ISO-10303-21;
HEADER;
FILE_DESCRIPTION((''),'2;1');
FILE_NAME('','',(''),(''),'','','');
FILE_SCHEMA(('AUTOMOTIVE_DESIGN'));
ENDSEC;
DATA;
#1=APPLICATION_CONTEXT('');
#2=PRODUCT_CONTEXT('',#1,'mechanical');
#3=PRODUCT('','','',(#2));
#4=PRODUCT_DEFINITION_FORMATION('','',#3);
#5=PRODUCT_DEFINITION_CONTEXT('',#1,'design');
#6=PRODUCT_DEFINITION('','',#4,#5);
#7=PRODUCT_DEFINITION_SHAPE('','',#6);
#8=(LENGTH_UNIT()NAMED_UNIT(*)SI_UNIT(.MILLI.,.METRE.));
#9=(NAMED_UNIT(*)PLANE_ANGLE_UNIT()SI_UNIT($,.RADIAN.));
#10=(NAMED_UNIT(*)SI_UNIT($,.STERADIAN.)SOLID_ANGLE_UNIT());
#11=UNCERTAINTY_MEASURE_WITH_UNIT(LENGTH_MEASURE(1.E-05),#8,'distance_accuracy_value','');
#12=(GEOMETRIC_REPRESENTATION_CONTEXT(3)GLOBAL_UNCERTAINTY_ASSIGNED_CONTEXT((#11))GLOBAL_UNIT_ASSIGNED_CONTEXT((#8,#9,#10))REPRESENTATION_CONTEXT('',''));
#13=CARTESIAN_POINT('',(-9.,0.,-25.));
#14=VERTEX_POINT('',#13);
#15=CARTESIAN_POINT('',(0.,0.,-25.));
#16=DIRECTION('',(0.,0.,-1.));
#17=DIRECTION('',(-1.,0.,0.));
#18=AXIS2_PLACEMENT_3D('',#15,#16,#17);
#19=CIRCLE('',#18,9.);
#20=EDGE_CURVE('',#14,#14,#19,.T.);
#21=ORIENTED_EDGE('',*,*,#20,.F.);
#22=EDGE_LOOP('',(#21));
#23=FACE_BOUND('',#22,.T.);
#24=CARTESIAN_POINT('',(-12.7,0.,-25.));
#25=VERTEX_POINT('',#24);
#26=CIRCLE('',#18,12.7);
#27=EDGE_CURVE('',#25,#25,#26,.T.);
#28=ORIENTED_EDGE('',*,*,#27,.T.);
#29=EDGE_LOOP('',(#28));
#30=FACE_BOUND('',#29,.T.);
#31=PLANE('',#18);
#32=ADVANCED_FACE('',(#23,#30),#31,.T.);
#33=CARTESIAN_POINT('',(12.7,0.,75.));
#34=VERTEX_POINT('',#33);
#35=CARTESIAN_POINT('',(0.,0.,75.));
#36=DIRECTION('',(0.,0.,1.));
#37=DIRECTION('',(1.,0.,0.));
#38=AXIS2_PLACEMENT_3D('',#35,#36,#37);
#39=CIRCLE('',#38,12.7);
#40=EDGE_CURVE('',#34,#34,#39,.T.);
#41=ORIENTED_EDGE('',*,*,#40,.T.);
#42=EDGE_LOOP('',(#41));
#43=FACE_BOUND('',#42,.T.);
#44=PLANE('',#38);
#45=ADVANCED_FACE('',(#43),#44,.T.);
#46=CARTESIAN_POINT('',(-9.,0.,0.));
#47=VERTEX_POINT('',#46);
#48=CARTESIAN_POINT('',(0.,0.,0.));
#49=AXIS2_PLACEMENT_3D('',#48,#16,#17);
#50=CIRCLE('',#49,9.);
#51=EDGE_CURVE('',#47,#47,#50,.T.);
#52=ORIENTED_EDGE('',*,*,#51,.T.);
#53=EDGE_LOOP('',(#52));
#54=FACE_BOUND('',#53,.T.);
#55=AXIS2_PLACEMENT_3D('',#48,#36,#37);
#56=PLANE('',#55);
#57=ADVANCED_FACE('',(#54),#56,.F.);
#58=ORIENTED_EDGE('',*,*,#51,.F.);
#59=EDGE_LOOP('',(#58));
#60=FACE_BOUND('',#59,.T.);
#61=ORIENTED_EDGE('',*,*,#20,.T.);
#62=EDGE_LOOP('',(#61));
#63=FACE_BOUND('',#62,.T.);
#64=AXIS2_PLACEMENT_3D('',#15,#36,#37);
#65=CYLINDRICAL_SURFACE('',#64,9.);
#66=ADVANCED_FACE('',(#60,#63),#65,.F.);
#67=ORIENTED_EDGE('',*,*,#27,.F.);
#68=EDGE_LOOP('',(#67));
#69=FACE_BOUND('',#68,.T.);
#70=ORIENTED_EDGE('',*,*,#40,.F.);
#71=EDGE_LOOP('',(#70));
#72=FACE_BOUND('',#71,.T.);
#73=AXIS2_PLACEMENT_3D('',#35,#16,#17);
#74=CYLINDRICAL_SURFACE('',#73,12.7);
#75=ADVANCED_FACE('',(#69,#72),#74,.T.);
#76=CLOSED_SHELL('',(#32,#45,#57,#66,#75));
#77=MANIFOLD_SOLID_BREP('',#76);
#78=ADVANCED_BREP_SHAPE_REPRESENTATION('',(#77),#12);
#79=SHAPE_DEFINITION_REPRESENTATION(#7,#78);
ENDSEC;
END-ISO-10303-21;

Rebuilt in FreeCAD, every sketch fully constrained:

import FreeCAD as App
import Part
import Sketcher

V = App.Vector
Q = App.Units.Quantity

doc = App.newDocument("Part")
body = doc.addObject("PartDesign::Body", "Body")

sketch1 = doc.addObject("Sketcher::SketchObject", "Sketch")
body.addObject(sketch1)
sketch1.AttachmentSupport = (doc.XY_Plane, [""])
sketch1.MapMode = "FlatFace"
sketch1.addGeometry(Part.Circle(V(0, 0, 0), V(0, 0, 1), 12.7), False)
sketch1.addConstraint([
    Sketcher.Constraint("Coincident", 0, 3, -1, 1),
    Sketcher.Constraint("Diameter", 0, Q("25.4 mm")),
])
pad1 = doc.addObject("PartDesign::Pad", "Pad")
body.addObject(pad1)
pad1.Profile = sketch1
pad1.Length = 75

sketch2 = doc.addObject("Sketcher::SketchObject", "Sketch001")
body.addObject(sketch2)
sketch2.AttachmentSupport = (doc.XY_Plane, [""])
sketch2.MapMode = "FlatFace"
sketch2.AttachmentOffset = App.Placement(V(0, 0, -25), App.Rotation())
sketch2.addGeometry([
    Part.Circle(V(0, 0, 0), V(0, 0, 1), 12.7),
    Part.Circle(V(0, 0, 0), V(0, 0, 1), 9),
], False)
sketch2.addConstraint([
    Sketcher.Constraint("Coincident", 0, 3, -1, 1),
    Sketcher.Constraint("Coincident", 1, 3, -1, 1),
    Sketcher.Constraint("Diameter", 1, Q("18 mm")),
    Sketcher.Constraint("Diameter", 0, Q("25.4 mm")),
])
pad2 = doc.addObject("PartDesign::Pad", "Pad001")
body.addObject(pad2)
pad2.Profile = sketch2
pad2.Length = 25

doc.recompute()
